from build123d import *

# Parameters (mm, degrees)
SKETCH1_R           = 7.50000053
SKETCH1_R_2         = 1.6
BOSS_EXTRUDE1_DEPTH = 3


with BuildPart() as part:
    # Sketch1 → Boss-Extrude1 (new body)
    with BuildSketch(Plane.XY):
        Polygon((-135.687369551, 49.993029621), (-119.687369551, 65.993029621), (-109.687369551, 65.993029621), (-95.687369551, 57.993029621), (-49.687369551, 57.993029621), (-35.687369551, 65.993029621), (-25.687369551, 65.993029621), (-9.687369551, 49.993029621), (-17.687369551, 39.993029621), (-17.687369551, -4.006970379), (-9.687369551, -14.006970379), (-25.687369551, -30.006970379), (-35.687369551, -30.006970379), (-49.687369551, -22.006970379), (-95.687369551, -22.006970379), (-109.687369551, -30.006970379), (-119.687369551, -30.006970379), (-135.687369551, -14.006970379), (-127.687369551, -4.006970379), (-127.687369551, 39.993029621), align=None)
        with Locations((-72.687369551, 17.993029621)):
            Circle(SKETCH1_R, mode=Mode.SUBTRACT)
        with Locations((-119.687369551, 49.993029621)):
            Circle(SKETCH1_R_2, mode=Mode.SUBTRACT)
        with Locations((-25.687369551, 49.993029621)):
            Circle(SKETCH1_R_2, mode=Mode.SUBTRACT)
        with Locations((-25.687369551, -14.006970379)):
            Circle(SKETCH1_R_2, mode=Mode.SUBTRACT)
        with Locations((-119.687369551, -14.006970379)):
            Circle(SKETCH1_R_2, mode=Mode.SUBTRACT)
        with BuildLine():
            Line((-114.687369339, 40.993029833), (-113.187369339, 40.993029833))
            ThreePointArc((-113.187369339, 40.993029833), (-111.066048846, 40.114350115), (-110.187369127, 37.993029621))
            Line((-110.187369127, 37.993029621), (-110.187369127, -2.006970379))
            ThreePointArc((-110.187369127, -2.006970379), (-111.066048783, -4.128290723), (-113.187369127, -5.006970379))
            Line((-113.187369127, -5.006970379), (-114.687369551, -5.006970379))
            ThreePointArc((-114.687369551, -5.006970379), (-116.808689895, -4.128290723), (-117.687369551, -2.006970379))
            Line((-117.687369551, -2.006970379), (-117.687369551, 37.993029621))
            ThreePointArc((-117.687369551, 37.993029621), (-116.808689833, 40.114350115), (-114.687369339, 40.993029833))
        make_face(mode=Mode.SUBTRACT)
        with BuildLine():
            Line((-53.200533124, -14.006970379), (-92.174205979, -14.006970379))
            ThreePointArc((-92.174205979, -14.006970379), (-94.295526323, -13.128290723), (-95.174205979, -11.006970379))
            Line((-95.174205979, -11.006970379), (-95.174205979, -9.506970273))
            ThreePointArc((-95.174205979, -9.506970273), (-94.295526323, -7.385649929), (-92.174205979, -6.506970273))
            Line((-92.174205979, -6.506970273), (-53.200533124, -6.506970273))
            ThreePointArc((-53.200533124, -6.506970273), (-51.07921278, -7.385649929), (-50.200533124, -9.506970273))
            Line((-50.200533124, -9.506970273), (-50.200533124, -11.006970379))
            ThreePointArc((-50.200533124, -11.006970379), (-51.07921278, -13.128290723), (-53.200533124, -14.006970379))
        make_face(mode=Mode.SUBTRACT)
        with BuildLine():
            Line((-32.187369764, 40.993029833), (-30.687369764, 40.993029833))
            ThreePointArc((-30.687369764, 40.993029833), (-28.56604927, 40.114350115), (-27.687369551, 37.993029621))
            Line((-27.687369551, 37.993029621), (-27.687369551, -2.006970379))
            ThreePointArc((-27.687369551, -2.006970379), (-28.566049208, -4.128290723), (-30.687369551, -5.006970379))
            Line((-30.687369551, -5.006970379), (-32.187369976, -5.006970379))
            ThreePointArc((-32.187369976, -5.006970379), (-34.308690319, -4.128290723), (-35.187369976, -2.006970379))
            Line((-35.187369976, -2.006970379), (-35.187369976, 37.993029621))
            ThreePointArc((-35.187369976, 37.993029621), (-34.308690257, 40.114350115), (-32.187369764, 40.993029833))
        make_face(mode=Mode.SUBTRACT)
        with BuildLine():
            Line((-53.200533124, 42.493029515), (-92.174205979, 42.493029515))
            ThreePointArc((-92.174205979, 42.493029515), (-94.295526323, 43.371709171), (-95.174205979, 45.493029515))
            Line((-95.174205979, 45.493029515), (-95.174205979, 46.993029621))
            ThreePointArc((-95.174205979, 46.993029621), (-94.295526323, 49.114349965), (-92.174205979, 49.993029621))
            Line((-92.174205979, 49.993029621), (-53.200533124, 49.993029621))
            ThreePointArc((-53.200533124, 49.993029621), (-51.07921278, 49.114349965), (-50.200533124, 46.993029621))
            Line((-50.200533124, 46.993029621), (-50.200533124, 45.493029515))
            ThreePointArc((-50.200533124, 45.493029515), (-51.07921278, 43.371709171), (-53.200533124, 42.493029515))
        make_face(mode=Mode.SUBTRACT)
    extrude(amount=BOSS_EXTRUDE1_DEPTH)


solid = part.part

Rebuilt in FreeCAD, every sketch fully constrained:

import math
import FreeCAD as App
import Part
import Sketcher

doc = App.newDocument("Part")
body = doc.addObject("PartDesign::Body", "Body")

# Sketch on XY plane
sketch1 = body.newObject("Sketcher::SketchObject", "Sketch")
sketch1.AttachmentSupport = (doc.getObject("XY_Plane"), [""])
sketch1.MapMode = "FlatFace"
sketch1.addGeometry(Part.LineSegment(App.Vector(-119.7, 66, 0), App.Vector(-135.7, 50, 0)), False)
sketch1.addGeometry(Part.LineSegment(App.Vector(-135.7, 50, 0), App.Vector(-127.7, 40, 0)), False)
sketch1.addGeometry(Part.LineSegment(App.Vector(-127.7, 40, 0), App.Vector(-127.7, -4, 0)), False)
sketch1.addGeometry(Part.LineSegment(App.Vector(-127.7, -4, 0), App.Vector(-135.7, -14, 0)), False)
sketch1.addGeometry(Part.LineSegment(App.Vector(-135.7, -14, 0), App.Vector(-119.7, -30, 0)), False)
sketch1.addGeometry(Part.LineSegment(App.Vector(-119.7, -30, 0), App.Vector(-109.7, -30, 0)), False)
sketch1.addGeometry(Part.LineSegment(App.Vector(-109.7, -30, 0), App.Vector(-95.7, -22, 0)), False)
sketch1.addGeometry(Part.LineSegment(App.Vector(-95.7, -22, 0), App.Vector(-49.7, -22, 0)), False)
sketch1.addGeometry(Part.LineSegment(App.Vector(-49.7, -22, 0), App.Vector(-35.7, -30, 0)), False)
sketch1.addGeometry(Part.LineSegment(App.Vector(-35.7, -30, 0), App.Vector(-25.7, -30, 0)), False)
sketch1.addGeometry(Part.LineSegment(App.Vector(-25.7, -30, 0), App.Vector(-9.7, -14, 0)), False)
sketch1.addGeometry(Part.LineSegment(App.Vector(-9.7, -14, 0), App.Vector(-17.7, -4, 0)), False)
sketch1.addGeometry(Part.LineSegment(App.Vector(-17.7, -4, 0), App.Vector(-17.7, 40, 0)), False)
sketch1.addGeometry(Part.LineSegment(App.Vector(-17.7, 40, 0), App.Vector(-9.7, 50, 0)), False)
sketch1.addGeometry(Part.LineSegment(App.Vector(-9.7, 50, 0), App.Vector(-25.7, 66, 0)), False)
sketch1.addGeometry(Part.LineSegment(App.Vector(-25.7, 66, 0), App.Vector(-35.7, 66, 0)), False)
sketch1.addGeometry(Part.LineSegment(App.Vector(-35.7, 66, 0), App.Vector(-49.7, 58, 0)), False)
sketch1.addGeometry(Part.LineSegment(App.Vector(-49.7, 58, 0), App.Vector(-95.7, 58, 0)), False)
sketch1.addGeometry(Part.LineSegment(App.Vector(-95.7, 58, 0), App.Vector(-109.7, 66, 0)), False)
sketch1.addGeometry(Part.LineSegment(App.Vector(-109.7, 66, 0), App.Vector(-119.7, 66, 0)), False)
sketch1.addGeometry(Part.Circle(App.Vector(-25.7, -14, 0), App.Vector(0, 0, 1), 1.6), False)
sketch1.addGeometry(Part.LineSegment(App.Vector(-53.2, -14, 0), App.Vector(-92.2, -14, 0)), False)
sketch1.addGeometry(Part.ArcOfCircle(Part.Circle(App.Vector(-92.2, -11, 0), App.Vector(0, 0, 1), 3), math.radians(180), math.radians(270)), False)
sketch1.addGeometry(Part.LineSegment(App.Vector(-95.2, -11, 0), App.Vector(-95.2, -9.5, 0)), False)
sketch1.addGeometry(Part.ArcOfCircle(Part.Circle(App.Vector(-92.2, -9.5, 0), App.Vector(0, 0, 1), 3), math.radians(90), math.radians(180)), False)
sketch1.addGeometry(Part.LineSegment(App.Vector(-92.2, -6.5, 0), App.Vector(-53.2, -6.5, 0)), False)
sketch1.addGeometry(Part.ArcOfCircle(Part.Circle(App.Vector(-53.2, -9.5, 0), App.Vector(0, 0, 1), 3), math.radians(0), math.radians(90)), False)
sketch1.addGeometry(Part.LineSegment(App.Vector(-50.2, -9.5, 0), App.Vector(-50.2, -11, 0)), False)
sketch1.addGeometry(Part.ArcOfCircle(Part.Circle(App.Vector(-53.2, -11, 0), App.Vector(0, 0, 1), 3), math.radians(-90), math.radians(0)), False)
sketch1.addGeometry(Part.Circle(App.Vector(-119.7, -14, 0), App.Vector(0, 0, 1), 1.6), False)
sketch1.addGeometry(Part.LineSegment(App.Vector(-32.2, 41, 0), App.Vector(-30.7, 41, 0)), False)
sketch1.addGeometry(Part.ArcOfCircle(Part.Circle(App.Vector(-30.7, 38, 0), App.Vector(0, 0, 1), 3), math.radians(0), math.radians(90)), False)
sketch1.addGeometry(Part.LineSegment(App.Vector(-27.7, 38, 0), App.Vector(-27.7, -2, 0)), False)
sketch1.addGeometry(Part.ArcOfCircle(Part.Circle(App.Vector(-30.7, -2, 0), App.Vector(0, 0, 1), 3), math.radians(-90), math.radians(0)), False)
sketch1.addGeometry(Part.LineSegment(App.Vector(-30.7, -5, 0), App.Vector(-32.2, -5, 0)), False)
sketch1.addGeometry(Part.ArcOfCircle(Part.Circle(App.Vector(-32.2, -2, 0), App.Vector(0, 0, 1), 3), math.radians(180), math.radians(270)), False)
sketch1.addGeometry(Part.LineSegment(App.Vector(-35.2, -2, 0), App.Vector(-35.2, 38, 0)), False)
sketch1.addGeometry(Part.ArcOfCircle(Part.Circle(App.Vector(-32.2, 38, 0), App.Vector(0, 0, 1), 3), math.radians(90), math.radians(180)), False)
sketch1.addGeometry(Part.Circle(App.Vector(-25.7, 50, 0), App.Vector(0, 0, 1), 1.6), False)
sketch1.addGeometry(Part.Circle(App.Vector(-72.7, 18, 0), App.Vector(0, 0, 1), 7.5), False)
sketch1.addGeometry(Part.LineSegment(App.Vector(-114.7, 41, 0), App.Vector(-113.2, 41, 0)), False)
sketch1.addGeometry(Part.ArcOfCircle(Part.Circle(App.Vector(-113.2, 38, 0), App.Vector(0, 0, 1), 3), math.radians(0), math.radians(90)), False)
sketch1.addGeometry(Part.LineSegment(App.Vector(-110.2, 38, 0), App.Vector(-110.2, -2, 0)), False)
sketch1.addGeometry(Part.ArcOfCircle(Part.Circle(App.Vector(-113.2, -2, 0), App.Vector(0, 0, 1), 3), math.radians(-90), math.radians(0)), False)
sketch1.addGeometry(Part.LineSegment(App.Vector(-113.2, -5, 0), App.Vector(-114.7, -5, 0)), False)
sketch1.addGeometry(Part.ArcOfCircle(Part.Circle(App.Vector(-114.7, -2, 0), App.Vector(0, 0, 1), 3), math.radians(180), math.radians(270)), False)
sketch1.addGeometry(Part.LineSegment(App.Vector(-117.7, -2, 0), App.Vector(-117.7, 38, 0)), False)
sketch1.addGeometry(Part.ArcOfCircle(Part.Circle(App.Vector(-114.7, 38, 0), App.Vector(0, 0, 1), 3), math.radians(90), math.radians(180)), False)
sketch1.addGeometry(Part.LineSegment(App.Vector(-53.2, 42.5, 0), App.Vector(-92.2, 42.5, 0)), False)
sketch1.addGeometry(Part.ArcOfCircle(Part.Circle(App.Vector(-92.2, 45.5, 0), App.Vector(0, 0, 1), 3), math.radians(180), math.radians(270)), False)
sketch1.addGeometry(Part.LineSegment(App.Vector(-95.2, 45.5, 0), App.Vector(-95.2, 47, 0)), False)
sketch1.addGeometry(Part.ArcOfCircle(Part.Circle(App.Vector(-92.2, 47, 0), App.Vector(0, 0, 1), 3), math.radians(90), math.radians(180)), False)
sketch1.addGeometry(Part.LineSegment(App.Vector(-92.2, 50, 0), App.Vector(-53.2, 50, 0)), False)
sketch1.addGeometry(Part.ArcOfCircle(Part.Circle(App.Vector(-53.2, 47, 0), App.Vector(0, 0, 1), 3), math.radians(0), math.radians(90)), False)
sketch1.addGeometry(Part.LineSegment(App.Vector(-50.2, 47, 0), App.Vector(-50.2, 45.5, 0)), False)
sketch1.addGeometry(Part.ArcOfCircle(Part.Circle(App.Vector(-53.2, 45.5, 0), App.Vector(0, 0, 1), 3), math.radians(-90), math.radians(0)), False)
sketch1.addGeometry(Part.Circle(App.Vector(-119.7, 50, 0), App.Vector(0, 0, 1), 1.6), False)
sketch1.addConstraint(Sketcher.Constraint("Coincident", 0, 2, 1, 1))
sketch1.addConstraint(Sketcher.Constraint("Coincident", 1, 2, 2, 1))
sketch1.addConstraint(Sketcher.Constraint("Coincident", 2, 2, 3, 1))
sketch1.addConstraint(Sketcher.Constraint("Coincident", 3, 2, 4, 1))
sketch1.addConstraint(Sketcher.Constraint("Coincident", 4, 2, 5, 1))
sketch1.addConstraint(Sketcher.Constraint("Coincident", 5, 2, 6, 1))
sketch1.addConstraint(Sketcher.Constraint("Coincident", 6, 2, 7, 1))
sketch1.addConstraint(Sketcher.Constraint("Coincident", 7, 2, 8, 1))
sketch1.addConstraint(Sketcher.Constraint("Coincident", 8, 2, 9, 1))
sketch1.addConstraint(Sketcher.Constraint("Coincident", 9, 2, 10, 1))
sketch1.addConstraint(Sketcher.Constraint("Coincident", 10, 2, 11, 1))
sketch1.addConstraint(Sketcher.Constraint("Coincident", 11, 2, 12, 1))
sketch1.addConstraint(Sketcher.Constraint("Coincident", 12, 2, 13, 1))
sketch1.addConstraint(Sketcher.Constraint("Coincident", 13, 2, 14, 1))
sketch1.addConstraint(Sketcher.Constraint("Coincident", 14, 2, 15, 1))
sketch1.addConstraint(Sketcher.Constraint("Coincident", 15, 2, 16, 1))
sketch1.addConstraint(Sketcher.Constraint("Coincident", 16, 2, 17, 1))
sketch1.addConstraint(Sketcher.Constraint("Coincident", 17, 2, 18, 1))
sketch1.addConstraint(Sketcher.Constraint("Coincident", 18, 2, 19, 1))
sketch1.addConstraint(Sketcher.Constraint("Coincident", 19, 2, 0, 1))
sketch1.addConstraint(Sketcher.Constraint("Tangent", 21, 2, 22, 2))
sketch1.addConstraint(Sketcher.Constraint("Tangent", 22, 1, 23, 1))
sketch1.addConstraint(Sketcher.Constraint("Tangent", 23, 2, 24, 2))
sketch1.addConstraint(Sketcher.Constraint("Tangent", 24, 1, 25, 1))
sketch1.addConstraint(Sketcher.Constraint("Tangent", 25, 2, 26, 2))
sketch1.addConstraint(Sketcher.Constraint("Tangent", 26, 1, 27, 1))
sketch1.addConstraint(Sketcher.Constraint("Tangent", 27, 2, 28, 2))
sketch1.addConstraint(Sketcher.Constraint("Tangent", 28, 1, 21, 1))
sketch1.addConstraint(Sketcher.Constraint("Tangent", 30, 2, 31, 2))
sketch1.addConstraint(Sketcher.Constraint("Tangent", 31, 1, 32, 1))
sketch1.addConstraint(Sketcher.Constraint("Tangent", 32, 2, 33, 2))
sketch1.addConstraint(Sketcher.Constraint("Tangent", 33, 1, 34, 1))
sketch1.addConstraint(Sketcher.Constraint("Tangent", 34, 2, 35, 2))
sketch1.addConstraint(Sketcher.Constraint("Tangent", 35, 1, 36, 1))
sketch1.addConstraint(Sketcher.Constraint("Tangent", 36, 2, 37, 2))
sketch1.addConstraint(Sketcher.Constraint("Tangent", 37, 1, 30, 1))
sketch1.addConstraint(Sketcher.Constraint("Tangent", 40, 2, 41, 2))
sketch1.addConstraint(Sketcher.Constraint("Tangent", 41, 1, 42, 1))
sketch1.addConstraint(Sketcher.Constraint("Tangent", 42, 2, 43, 2))
sketch1.addConstraint(Sketcher.Constraint("Tangent", 43, 1, 44, 1))
sketch1.addConstraint(Sketcher.Constraint("Tangent", 44, 2, 45, 2))
sketch1.addConstraint(Sketcher.Constraint("Tangent", 45, 1, 46, 1))
sketch1.addConstraint(Sketcher.Constraint("Tangent", 46, 2, 47, 2))
sketch1.addConstraint(Sketcher.Constraint("Tangent", 47, 1, 40, 1))
sketch1.addConstraint(Sketcher.Constraint("Tangent", 48, 2, 49, 2))
sketch1.addConstraint(Sketcher.Constraint("Tangent", 49, 1, 50, 1))
sketch1.addConstraint(Sketcher.Constraint("Tangent", 50, 2, 51, 2))
sketch1.addConstraint(Sketcher.Constraint("Tangent", 51, 1, 52, 1))
sketch1.addConstraint(Sketcher.Constraint("Tangent", 52, 2, 53, 2))
sketch1.addConstraint(Sketcher.Constraint("Tangent", 53, 1, 54, 1))
sketch1.addConstraint(Sketcher.Constraint("Tangent", 54, 2, 55, 2))
sketch1.addConstraint(Sketcher.Constraint("Tangent", 55, 1, 48, 1))
sketch1.addConstraint(Sketcher.Constraint("Vertical", 2))
sketch1.addConstraint(Sketcher.Constraint("Horizontal", 5))
sketch1.addConstraint(Sketcher.Constraint("Horizontal", 7))
sketch1.addConstraint(Sketcher.Constraint("Horizontal", 9))
sketch1.addConstraint(Sketcher.Constraint("Vertical", 12))
sketch1.addConstraint(Sketcher.Constraint("Horizontal", 15))
sketch1.addConstraint(Sketcher.Constraint("Horizontal", 17))
sketch1.addConstraint(Sketcher.Constraint("Horizontal", 19))
sketch1.addConstraint(Sketcher.Constraint("Horizontal", 21))
sketch1.addConstraint(Sketcher.Constraint("Vertical", 23))
sketch1.addConstraint(Sketcher.Constraint("Horizontal", 25))
sketch1.addConstraint(Sketcher.Constraint("Vertical", 27))
sketch1.addConstraint(Sketcher.Constraint("Horizontal", 30))
sketch1.addConstraint(Sketcher.Constraint("Vertical", 32))
sketch1.addConstraint(Sketcher.Constraint("Horizontal", 34))
sketch1.addConstraint(Sketcher.Constraint("Vertical", 36))
sketch1.addConstraint(Sketcher.Constraint("Horizontal", 40))
sketch1.addConstraint(Sketcher.Constraint("Vertical", 42))
sketch1.addConstraint(Sketcher.Constraint("Horizontal", 44))
sketch1.addConstraint(Sketcher.Constraint("Vertical", 46))
sketch1.addConstraint(Sketcher.Constraint("Horizontal", 48))
sketch1.addConstraint(Sketcher.Constraint("Vertical", 50))
sketch1.addConstraint(Sketcher.Constraint("Horizontal", 52))
sketch1.addConstraint(Sketcher.Constraint("Vertical", 54))
sketch1.addConstraint(Sketcher.Constraint("Equal", 22, 24))
sketch1.addConstraint(Sketcher.Constraint("Equal", 24, 26))
sketch1.addConstraint(Sketcher.Constraint("Equal", 26, 28))
sketch1.addConstraint(Sketcher.Constraint("Equal", 20, 29))
sketch1.addConstraint(Sketcher.Constraint("Equal", 28, 31))
sketch1.addConstraint(Sketcher.Constraint("Equal", 31, 33))
sketch1.addConstraint(Sketcher.Constraint("Equal", 33, 35))
sketch1.addConstraint(Sketcher.Constraint("Equal", 35, 37))
sketch1.addConstraint(Sketcher.Constraint("Equal", 29, 38))
sketch1.addConstraint(Sketcher.Constraint("Equal", 37, 41))
sketch1.addConstraint(Sketcher.Constraint("Equal", 41, 43))
sketch1.addConstraint(Sketcher.Constraint("Equal", 43, 45))
sketch1.addConstraint(Sketcher.Constraint("Equal", 45, 47))
sketch1.addConstraint(Sketcher.Constraint("Equal", 47, 49))
sketch1.addConstraint(Sketcher.Constraint("Equal", 49, 51))
sketch1.addConstraint(Sketcher.Constraint("Equal", 51, 53))
sketch1.addConstraint(Sketcher.Constraint("Equal", 53, 55))
sketch1.addConstraint(Sketcher.Constraint("Equal", 38, 56))
sketch1.addConstraint(Sketcher.Constraint("Perpendicular", 0, 4))
sketch1.addConstraint(Sketcher.Constraint("Perpendicular", 4, 10))
sketch1.addConstraint(Sketcher.Constraint("Parallel", 1, 11))
sketch1.addConstraint(Sketcher.Constraint("Parallel", 3, 13))
sketch1.addConstraint(Sketcher.Constraint("Perpendicular", 10, 14))
sketch1.addConstraint(Sketcher.Constraint("Parallel", 6, 16))
sketch1.addConstraint(Sketcher.Constraint("Parallel", 8, 18))
sketch1.addConstraint(Sketcher.Constraint("Horizontal", 20, 3, 29, 3))
sketch1.addConstraint(Sketcher.Constraint("Horizontal", 37, 3, 41, 3))
sketch1.addConstraint(Sketcher.Constraint("Horizontal", 35, 3, 43, 3))
sketch1.addConstraint(Sketcher.Constraint("Horizontal", 38, 3, 56, 3))
sketch1.addConstraint(Sketcher.Constraint("Horizontal", 56, 3, 0, 2))
sketch1.addConstraint(Sketcher.Constraint("Horizontal", 29, 3, 3, 2))
sketch1.addConstraint(Sketcher.Constraint("Horizontal", 5, 2, 8, 2))
sketch1.addConstraint(Sketcher.Constraint("Horizontal", 3, 2, 10, 2))
sketch1.addConstraint(Sketcher.Constraint("Horizontal", 2, 2, 11, 2))
sketch1.addConstraint(Sketcher.Constraint("Horizontal", 1, 2, 12, 2))
sketch1.addConstraint(Sketcher.Constraint("Horizontal", 0, 2, 13, 2))
sketch1.addConstraint(Sketcher.Constraint("Horizontal", 15, 2, 18, 2))
sketch1.addConstraint(Sketcher.Constraint("Horizontal", 10, 2, 21, 2))
sketch1.addConstraint(Sketcher.Constraint("Horizontal", 13, 2, 51, 1))
sketch1.addConstraint(Sketcher.Constraint("Vertical", 20, 3, 38, 3))
sketch1.addConstraint(Sketcher.Constraint("Vertical", 24, 3, 49, 3))
sketch1.addConstraint(Sketcher.Constraint("Vertical", 28, 3, 53, 3))
sketch1.addConstraint(Sketcher.Constraint("Vertical", 29, 3, 56, 3))
sketch1.addConstraint(Sketcher.Constraint("Vertical", 0, 2, 3, 2))
sketch1.addConstraint(Sketcher.Constraint("Vertical", 56, 3, 4, 2))
sketch1.addConstraint(Sketcher.Constraint("Vertical", 38, 3, 9, 2))
sketch1.addConstraint(Sketcher.Constraint("Vertical", 10, 2, 13, 2))
sketch1.addConstraint(Sketcher.Constraint("Vertical", 9, 2, 14, 2))
sketch1.addConstraint(Sketcher.Constraint("Vertical", 8, 2, 15, 2))
sketch1.addConstraint(Sketcher.Constraint("Vertical", 7, 2, 16, 2))
sketch1.addConstraint(Sketcher.Constraint("Vertical", 6, 2, 17, 2))
sketch1.addConstraint(Sketcher.Constraint("Vertical", 5, 2, 18, 2))
sketch1.addConstraint(Sketcher.Constraint("Vertical", 4, 2, 19, 2))
sketch1.addConstraint(Sketcher.Constraint("Equal", 5, 9))
sketch1.addConstraint(Sketcher.Constraint("Equal", 34, 40))
sketch1.addConstraint(Sketcher.Constraint("Equal", 44, 23))
sketch1.addConstraint(Sketcher.Constraint("Equal", 27, 50))
sketch1.addConstraint(Sketcher.Constraint("Diameter", 39, 15.000001))
sketch1.addConstraint(Sketcher.Constraint("Radius", 22, 3.0))
sketch1.addConstraint(Sketcher.Constraint("Diameter", 20, 3.2))
sketch1.addConstraint(Sketcher.Constraint("DistanceX", 5, 1, 5, 2, 10.0))
sketch1.addConstraint(Sketcher.Constraint("DistanceX", 7, 1, 7, 2, 46.0))
sketch1.addConstraint(Sketcher.Constraint("DistanceY", 2, 2, 2, 1, 44.0))
sketch1.addConstraint(Sketcher.Constraint("DistanceY", 32, 2, 32, 1, 40.0))
sketch1.addConstraint(Sketcher.Constraint("DistanceX", 30, 1, 30, 2, 1.5))
sketch1.addConstraint(Sketcher.Constraint("Distance", 1, 12.806248))
sketch1.addConstraint(Sketcher.Constraint("DistanceX", 21, 2, 21, 1, 38.973673))
sketch1.addConstraint(Sketcher.Constraint("DistanceX", 20, 3, -1, 1, 25.68737))
sketch1.addConstraint(Sketcher.Constraint("DistanceY", 20, 3, -1, 1, 14.00697))
sketch1.addConstraint(Sketcher.Constraint("DistanceX", 29, 3, -1, 1, 119.68737))
sketch1.addConstraint(Sketcher.Constraint("DistanceX", 31, 3, -1, 1, 30.68737))
sketch1.addConstraint(Sketcher.Constraint("DistanceY", -1, 1, 31, 3, 37.99303))
sketch1.addConstraint(Sketcher.Constraint("DistanceY", -1, 1, 38, 3, 49.99303))
sketch1.addConstraint(Sketcher.Constraint("DistanceX", 39, 3, -1, 1, 72.68737))
sketch1.addConstraint(Sketcher.Constraint("DistanceY", -1, 1, 39, 3, 17.99303))
sketch1.addConstraint(Sketcher.Constraint("DistanceX", 41, 3, -1, 1, 113.187369))
sketch1.addConstraint(Sketcher.Constraint("DistanceX", 0, 2, -1, 1, 135.68737))
sketch1.addConstraint(Sketcher.Constraint("DistanceY", 6, 2, -1, 1, 22.00697))
sketch1.addConstraint(Sketcher.Constraint("DistanceX", 22, 3, -1, 1, 92.174206))
pad1 = body.newObject("PartDesign::Pad", "Pad")
pad1.Profile = sketch1
pad1.Length = 3

doc.recompute()
